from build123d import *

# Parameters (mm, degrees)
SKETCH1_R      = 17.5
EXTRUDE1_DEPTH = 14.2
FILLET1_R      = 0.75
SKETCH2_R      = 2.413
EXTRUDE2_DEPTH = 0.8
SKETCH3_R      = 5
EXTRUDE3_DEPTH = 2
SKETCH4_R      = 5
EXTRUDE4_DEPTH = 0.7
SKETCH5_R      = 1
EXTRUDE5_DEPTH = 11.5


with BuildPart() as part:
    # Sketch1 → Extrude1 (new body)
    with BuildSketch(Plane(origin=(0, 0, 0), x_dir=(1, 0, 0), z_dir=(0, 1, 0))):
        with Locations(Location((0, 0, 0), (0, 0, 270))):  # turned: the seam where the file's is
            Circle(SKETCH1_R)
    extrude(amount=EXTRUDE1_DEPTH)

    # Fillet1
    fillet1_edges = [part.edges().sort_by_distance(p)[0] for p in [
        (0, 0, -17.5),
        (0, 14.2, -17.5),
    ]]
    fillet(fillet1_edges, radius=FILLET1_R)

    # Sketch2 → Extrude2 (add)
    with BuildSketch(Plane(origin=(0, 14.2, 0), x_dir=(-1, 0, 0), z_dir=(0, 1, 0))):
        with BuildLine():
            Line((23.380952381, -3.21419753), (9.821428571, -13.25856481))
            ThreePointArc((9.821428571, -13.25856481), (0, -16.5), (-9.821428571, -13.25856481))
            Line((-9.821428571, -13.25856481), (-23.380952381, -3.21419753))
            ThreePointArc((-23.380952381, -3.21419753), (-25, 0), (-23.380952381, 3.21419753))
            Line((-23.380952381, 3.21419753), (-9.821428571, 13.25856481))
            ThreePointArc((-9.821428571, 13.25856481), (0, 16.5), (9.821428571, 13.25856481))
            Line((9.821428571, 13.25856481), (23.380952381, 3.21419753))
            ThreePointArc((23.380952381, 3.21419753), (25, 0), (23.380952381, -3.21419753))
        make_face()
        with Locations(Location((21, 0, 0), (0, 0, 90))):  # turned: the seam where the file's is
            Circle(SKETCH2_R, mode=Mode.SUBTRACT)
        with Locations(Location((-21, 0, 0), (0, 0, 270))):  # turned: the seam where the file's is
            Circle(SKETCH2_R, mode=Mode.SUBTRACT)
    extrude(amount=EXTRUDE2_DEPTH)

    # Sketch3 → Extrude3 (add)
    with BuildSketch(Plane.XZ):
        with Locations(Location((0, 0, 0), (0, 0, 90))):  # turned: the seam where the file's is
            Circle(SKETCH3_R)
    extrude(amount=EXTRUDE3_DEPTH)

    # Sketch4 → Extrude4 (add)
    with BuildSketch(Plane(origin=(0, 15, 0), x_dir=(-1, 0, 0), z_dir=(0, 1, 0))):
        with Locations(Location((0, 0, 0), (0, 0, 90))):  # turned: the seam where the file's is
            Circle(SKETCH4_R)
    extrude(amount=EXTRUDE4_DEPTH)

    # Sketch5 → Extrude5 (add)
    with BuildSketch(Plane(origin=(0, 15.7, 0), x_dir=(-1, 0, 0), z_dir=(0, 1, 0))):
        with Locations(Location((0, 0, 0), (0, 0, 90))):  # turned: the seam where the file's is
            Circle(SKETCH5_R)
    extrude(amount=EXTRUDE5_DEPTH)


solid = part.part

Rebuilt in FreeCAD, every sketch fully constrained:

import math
import FreeCAD as App
import Part
import Sketcher


def edges_at(feature, points):
    """Names of the edges that pass closest to the given points."""
    edges = feature.Shape.Edges
    near = lambda p: min(range(len(edges)), key=lambda i: edges[i].distToShape(Part.Vertex(*p))[0])
    return sorted({f"Edge{near(p) + 1}" for p in points})

doc = App.newDocument("Part")
body = doc.addObject("PartDesign::Body", "Body")

sketch1 = doc.addObject("Sketcher::SketchObject", "Sketch")
body.addObject(sketch1)
sketch1.AttachmentSupport = (doc.XZ_Plane, [""])
sketch1.MapMode = "FlatFace"
sketch1.addGeometry(Part.Circle(App.Vector(0, 0, 0), App.Vector(0, 0, 1), 18), False)
sketch1.addConstraint(Sketcher.Constraint("Coincident", 0, 3, -1, 1))
sketch1.addConstraint(Sketcher.Constraint("Diameter", 0, 35.0))
pad1 = doc.addObject("PartDesign::Pad", "Pad")
body.addObject(pad1)
pad1.Profile = sketch1
pad1.Length = 14.2
pad1.Reversed = True
doc.recompute()

fillet = doc.addObject("PartDesign::Fillet", "Fillet")
body.addObject(fillet)
fillet.Base = (pad1, edges_at(pad1, [(0, 0, -17.5), (0, 14.2, -17.5)]))
fillet.Radius = 0.75

sketch2 = doc.addObject("Sketcher::SketchObject", "Sketch001")
body.addObject(sketch2)
sketch2.AttachmentSupport = (doc.XZ_Plane, [""])
sketch2.MapMode = "FlatFace"
sketch2.AttachmentOffset = App.Placement(App.Vector(0, 0, -14.2), App.Rotation())
sketch2.addGeometry(Part.LineSegment(App.Vector(-9.8, -13.3, 0), App.Vector(-23.4, -3.2, 0)), False)
sketch2.addGeometry(Part.ArcOfCircle(Part.Circle(App.Vector(-21, 0, 0), App.Vector(0, 0, 1), 4), math.radians(127), math.radians(233)), False)
sketch2.addGeometry(Part.LineSegment(App.Vector(-23.4, 3.2, 0), App.Vector(-9.8, 13.3, 0)), False)
sketch2.addGeometry(Part.ArcOfCircle(Part.Circle(App.Vector(0, 0, 0), App.Vector(0, 0, 1), 16.5), math.radians(53), math.radians(127)), False)
sketch2.addGeometry(Part.LineSegment(App.Vector(9.8, 13.3, 0), App.Vector(23.4, 3.2, 0)), False)
sketch2.addGeometry(Part.ArcOfCircle(Part.Circle(App.Vector(21, 0, 0), App.Vector(0, 0, 1), 4), math.radians(-53), math.radians(53)), False)
sketch2.addGeometry(Part.LineSegment(App.Vector(23.4, -3.2, 0), App.Vector(9.8, -13.3, 0)), False)
sketch2.addGeometry(Part.ArcOfCircle(Part.Circle(App.Vector(0, 0, 0), App.Vector(0, 0, 1), 16.5), math.radians(-127), math.radians(-53)), False)
sketch2.addGeometry(Part.Circle(App.Vector(-21, 0, 0), App.Vector(0, 0, 1), 2.4), False)
sketch2.addGeometry(Part.Circle(App.Vector(21, 0, 0), App.Vector(0, 0, 1), 2.4), False)
sketch2.addConstraint(Sketcher.Constraint("Tangent", 0, 2, 1, 2))
sketch2.addConstraint(Sketcher.Constraint("Tangent", 1, 1, 2, 1))
sketch2.addConstraint(Sketcher.Constraint("Tangent", 2, 2, 3, 2))
sketch2.addConstraint(Sketcher.Constraint("Tangent", 3, 1, 4, 1))
sketch2.addConstraint(Sketcher.Constraint("Tangent", 4, 2, 5, 2))
sketch2.addConstraint(Sketcher.Constraint("Tangent", 5, 1, 6, 1))
sketch2.addConstraint(Sketcher.Constraint("Tangent", 6, 2, 7, 2))
sketch2.addConstraint(Sketcher.Constraint("Tangent", 7, 1, 0, 1))
sketch2.addConstraint(Sketcher.Constraint("Coincident", 3, 3, -1, 1))
sketch2.addConstraint(Sketcher.Constraint("Coincident", 7, 3, -1, 1))
sketch2.addConstraint(Sketcher.Constraint("Coincident", 8, 3, 1, 3))
sketch2.addConstraint(Sketcher.Constraint("Coincident", 9, 3, 5, 3))
sketch2.addConstraint(Sketcher.Constraint("Equal", 1, 5))
sketch2.addConstraint(Sketcher.Constraint("Equal", 3, 7))
sketch2.addConstraint(Sketcher.Constraint("Equal", 8, 9))
sketch2.addConstraint(Sketcher.Constraint("Symmetric", 1, 3, 5, 3, -1, 1))
sketch2.addConstraint(Sketcher.Constraint("PointOnObject", 1, 3, -1))
sketch2.addConstraint(Sketcher.Constraint("Radius", 1, 4.0))
sketch2.addConstraint(Sketcher.Constraint("Radius", 3, 16.5))
sketch2.addConstraint(Sketcher.Constraint("Diameter", 8, 4.826))
sketch2.addConstraint(Sketcher.Constraint("DistanceX", 1, 3, -1, 1, 21.0))
pad2 = doc.addObject("PartDesign::Pad", "Pad001")
body.addObject(pad2)
pad2.Profile = sketch2
pad2.Length = 0.8
pad2.Reversed = True

sketch3 = doc.addObject("Sketcher::SketchObject", "Sketch002")
body.addObject(sketch3)
sketch3.AttachmentSupport = (doc.XZ_Plane, [""])
sketch3.MapMode = "FlatFace"
sketch3.addGeometry(Part.Circle(App.Vector(0, 0, 0), App.Vector(0, 0, 1), 5), False)
sketch3.addConstraint(Sketcher.Constraint("Coincident", 0, 3, -1, 1))
sketch3.addConstraint(Sketcher.Constraint("Diameter", 0, 10.0))
pad3 = doc.addObject("PartDesign::Pad", "Pad002")
body.addObject(pad3)
pad3.Profile = sketch3
pad3.Length = 2

sketch4 = doc.addObject("Sketcher::SketchObject", "Sketch003")
body.addObject(sketch4)
sketch4.AttachmentSupport = (doc.XZ_Plane, [""])
sketch4.MapMode = "FlatFace"
sketch4.AttachmentOffset = App.Placement(App.Vector(0, 0, -15), App.Rotation())
sketch4.addGeometry(Part.Circle(App.Vector(0, 0, 0), App.Vector(0, 0, 1), 5), False)
sketch4.addConstraint(Sketcher.Constraint("Coincident", 0, 3, -1, 1))
sketch4.addConstraint(Sketcher.Constraint("Diameter", 0, 10.0))
pad4 = doc.addObject("PartDesign::Pad", "Pad003")
body.addObject(pad4)
pad4.Profile = sketch4
pad4.Length = 0.7
pad4.Reversed = True

sketch5 = doc.addObject("Sketcher::SketchObject", "Sketch004")
body.addObject(sketch5)
sketch5.AttachmentSupport = (doc.XZ_Plane, [""])
sketch5.MapMode = "FlatFace"
sketch5.AttachmentOffset = App.Placement(App.Vector(0, 0, -15.7), App.Rotation())
sketch5.addGeometry(Part.Circle(App.Vector(0, 0, 0), App.Vector(0, 0, 1), 1), False)
sketch5.addConstraint(Sketcher.Constraint("Coincident", 0, 3, -1, 1))
sketch5.addConstraint(Sketcher.Constraint("Diameter", 0, 2.0))
pad5 = doc.addObject("PartDesign::Pad", "Pad004")
body.addObject(pad5)
pad5.Profile = sketch5
pad5.Length = 11.5
pad5.Reversed = True

doc.recompute()
